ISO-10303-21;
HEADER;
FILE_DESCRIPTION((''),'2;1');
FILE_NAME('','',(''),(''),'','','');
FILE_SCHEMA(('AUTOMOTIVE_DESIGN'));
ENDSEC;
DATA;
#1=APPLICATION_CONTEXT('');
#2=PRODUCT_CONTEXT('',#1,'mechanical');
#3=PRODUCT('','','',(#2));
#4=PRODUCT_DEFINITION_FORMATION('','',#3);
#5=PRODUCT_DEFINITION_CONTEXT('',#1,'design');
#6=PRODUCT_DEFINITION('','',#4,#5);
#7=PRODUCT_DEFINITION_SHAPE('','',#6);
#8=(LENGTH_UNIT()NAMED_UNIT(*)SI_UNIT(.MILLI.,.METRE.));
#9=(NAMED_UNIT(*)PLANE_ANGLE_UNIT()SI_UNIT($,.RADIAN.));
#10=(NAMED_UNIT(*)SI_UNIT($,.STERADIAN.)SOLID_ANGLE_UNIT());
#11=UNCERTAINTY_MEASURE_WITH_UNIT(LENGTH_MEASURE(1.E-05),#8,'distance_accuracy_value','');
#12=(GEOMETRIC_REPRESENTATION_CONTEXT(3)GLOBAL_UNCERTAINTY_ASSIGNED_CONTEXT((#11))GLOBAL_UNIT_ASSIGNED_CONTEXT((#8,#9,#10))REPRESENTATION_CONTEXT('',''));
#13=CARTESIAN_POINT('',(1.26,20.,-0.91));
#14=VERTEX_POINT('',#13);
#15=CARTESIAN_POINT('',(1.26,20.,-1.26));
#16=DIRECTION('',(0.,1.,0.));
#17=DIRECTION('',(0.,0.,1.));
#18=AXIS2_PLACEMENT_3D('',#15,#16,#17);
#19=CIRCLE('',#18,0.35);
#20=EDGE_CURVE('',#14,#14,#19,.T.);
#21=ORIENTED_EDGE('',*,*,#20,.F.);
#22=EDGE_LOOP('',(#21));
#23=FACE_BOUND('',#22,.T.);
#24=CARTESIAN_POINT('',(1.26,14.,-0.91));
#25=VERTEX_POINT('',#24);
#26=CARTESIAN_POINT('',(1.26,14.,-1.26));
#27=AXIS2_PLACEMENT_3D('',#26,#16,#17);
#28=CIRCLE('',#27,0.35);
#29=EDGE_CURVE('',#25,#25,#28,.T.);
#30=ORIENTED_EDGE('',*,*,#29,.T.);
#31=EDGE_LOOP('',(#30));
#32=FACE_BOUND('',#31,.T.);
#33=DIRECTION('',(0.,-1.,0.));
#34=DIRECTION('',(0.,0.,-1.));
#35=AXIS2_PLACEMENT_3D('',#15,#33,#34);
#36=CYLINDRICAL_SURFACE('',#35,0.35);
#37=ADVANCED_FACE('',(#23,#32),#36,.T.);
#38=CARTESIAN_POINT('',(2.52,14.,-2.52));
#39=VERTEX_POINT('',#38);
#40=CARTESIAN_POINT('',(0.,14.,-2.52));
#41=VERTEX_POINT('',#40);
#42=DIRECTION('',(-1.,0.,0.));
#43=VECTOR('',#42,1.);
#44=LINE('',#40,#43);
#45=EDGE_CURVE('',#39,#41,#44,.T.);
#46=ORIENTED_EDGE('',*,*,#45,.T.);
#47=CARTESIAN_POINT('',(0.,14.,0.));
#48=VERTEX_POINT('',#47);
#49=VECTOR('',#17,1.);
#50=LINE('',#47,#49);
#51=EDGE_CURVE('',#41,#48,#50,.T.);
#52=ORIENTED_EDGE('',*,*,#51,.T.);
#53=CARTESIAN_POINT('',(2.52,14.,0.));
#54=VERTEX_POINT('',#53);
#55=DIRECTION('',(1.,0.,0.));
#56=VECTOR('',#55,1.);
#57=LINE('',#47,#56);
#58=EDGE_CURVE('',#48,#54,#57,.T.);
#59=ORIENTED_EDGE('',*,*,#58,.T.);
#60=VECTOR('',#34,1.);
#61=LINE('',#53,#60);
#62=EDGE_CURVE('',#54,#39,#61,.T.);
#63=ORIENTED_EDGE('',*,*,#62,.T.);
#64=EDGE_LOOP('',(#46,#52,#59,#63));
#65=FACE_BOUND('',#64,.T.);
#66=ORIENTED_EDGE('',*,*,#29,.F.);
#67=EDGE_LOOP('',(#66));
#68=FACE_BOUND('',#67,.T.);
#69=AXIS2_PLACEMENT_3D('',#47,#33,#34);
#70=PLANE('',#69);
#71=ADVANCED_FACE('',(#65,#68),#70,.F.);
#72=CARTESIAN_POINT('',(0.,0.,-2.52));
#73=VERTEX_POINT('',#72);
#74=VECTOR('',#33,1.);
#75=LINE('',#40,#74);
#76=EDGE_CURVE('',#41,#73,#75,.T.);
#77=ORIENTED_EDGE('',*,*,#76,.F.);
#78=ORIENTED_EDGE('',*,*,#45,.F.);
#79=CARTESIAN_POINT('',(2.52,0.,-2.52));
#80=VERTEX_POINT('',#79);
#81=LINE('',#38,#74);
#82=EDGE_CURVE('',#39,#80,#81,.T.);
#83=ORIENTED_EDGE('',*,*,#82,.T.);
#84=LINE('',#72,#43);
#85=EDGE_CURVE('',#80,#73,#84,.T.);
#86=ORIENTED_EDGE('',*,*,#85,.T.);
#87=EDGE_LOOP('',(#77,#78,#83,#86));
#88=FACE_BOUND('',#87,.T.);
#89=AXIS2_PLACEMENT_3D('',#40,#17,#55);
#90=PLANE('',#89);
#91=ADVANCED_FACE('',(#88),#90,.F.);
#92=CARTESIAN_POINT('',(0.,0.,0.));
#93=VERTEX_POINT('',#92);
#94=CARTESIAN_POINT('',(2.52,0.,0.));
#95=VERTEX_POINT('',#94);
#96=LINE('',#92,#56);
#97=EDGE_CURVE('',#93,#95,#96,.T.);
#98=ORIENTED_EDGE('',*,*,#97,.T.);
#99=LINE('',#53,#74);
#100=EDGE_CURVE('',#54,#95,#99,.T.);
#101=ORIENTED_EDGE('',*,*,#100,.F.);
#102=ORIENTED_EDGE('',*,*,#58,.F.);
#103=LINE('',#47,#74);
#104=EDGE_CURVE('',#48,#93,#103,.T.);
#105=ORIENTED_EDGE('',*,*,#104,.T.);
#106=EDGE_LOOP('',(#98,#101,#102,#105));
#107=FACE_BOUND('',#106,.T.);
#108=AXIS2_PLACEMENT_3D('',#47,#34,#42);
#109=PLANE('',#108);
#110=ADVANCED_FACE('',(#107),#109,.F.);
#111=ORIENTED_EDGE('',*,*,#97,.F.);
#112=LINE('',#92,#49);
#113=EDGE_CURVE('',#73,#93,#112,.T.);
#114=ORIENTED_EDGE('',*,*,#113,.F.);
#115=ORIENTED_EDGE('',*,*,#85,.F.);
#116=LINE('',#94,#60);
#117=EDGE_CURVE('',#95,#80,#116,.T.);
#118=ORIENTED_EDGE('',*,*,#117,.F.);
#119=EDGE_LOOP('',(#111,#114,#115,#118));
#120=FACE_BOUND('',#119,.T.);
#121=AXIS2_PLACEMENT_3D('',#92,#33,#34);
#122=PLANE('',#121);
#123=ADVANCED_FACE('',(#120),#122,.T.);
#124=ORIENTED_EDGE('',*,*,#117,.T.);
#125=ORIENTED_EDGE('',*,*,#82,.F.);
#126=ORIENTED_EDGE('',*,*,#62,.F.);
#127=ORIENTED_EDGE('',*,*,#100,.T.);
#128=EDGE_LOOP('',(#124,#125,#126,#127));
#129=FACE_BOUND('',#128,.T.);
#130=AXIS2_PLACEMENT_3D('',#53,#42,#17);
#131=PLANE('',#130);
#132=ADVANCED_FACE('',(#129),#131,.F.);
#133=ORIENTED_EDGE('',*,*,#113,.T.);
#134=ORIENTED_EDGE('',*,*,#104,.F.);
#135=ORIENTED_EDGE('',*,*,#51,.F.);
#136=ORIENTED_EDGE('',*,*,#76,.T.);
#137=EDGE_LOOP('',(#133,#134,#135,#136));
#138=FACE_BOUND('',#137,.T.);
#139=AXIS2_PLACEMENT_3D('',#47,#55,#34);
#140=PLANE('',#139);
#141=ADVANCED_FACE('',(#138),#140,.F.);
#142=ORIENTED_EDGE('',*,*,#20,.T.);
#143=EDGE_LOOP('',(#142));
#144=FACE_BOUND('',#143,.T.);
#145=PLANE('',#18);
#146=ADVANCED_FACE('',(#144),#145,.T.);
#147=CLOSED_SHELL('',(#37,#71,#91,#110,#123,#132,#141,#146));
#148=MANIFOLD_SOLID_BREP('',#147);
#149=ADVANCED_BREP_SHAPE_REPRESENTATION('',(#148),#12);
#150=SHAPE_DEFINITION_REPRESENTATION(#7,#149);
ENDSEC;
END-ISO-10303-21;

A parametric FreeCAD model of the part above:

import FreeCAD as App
import Part
import Sketcher

V = App.Vector
Q = App.Units.Quantity


def add_polygon(sketch, points):
    """Adds a closed chain of lines whose ends are joined by coincident constraints."""
    first, n = sketch.GeometryCount, len(points)
    for a, b in zip(points, points[1:] + points[:1]):
        sketch.addGeometry(Part.LineSegment(App.Vector(*a, 0), App.Vector(*b, 0)), False)
    for i in range(n):
        sketch.addConstraint(Sketcher.Constraint("Coincident", first + i, 2, first + (i + 1) % n, 1))

doc = App.newDocument("Part")
params = doc.addObject("Spreadsheet::Sheet", "Params")
for row, (alias, value) in enumerate([
    ("sketch1_width", "2.52 mm"),
    ("pad1_length", "14 mm"),
    ("sketch2_diameter", "0.7 mm"),
    ("pad2_length", "6 mm"),
], start=1):
    params.set(f"A{row}", alias)
    params.set(f"B{row}", "=" + value)
    params.setAlias(f"B{row}", alias)

body = doc.addObject("PartDesign::Body", "Body")

sketch1 = doc.addObject("Sketcher::SketchObject", "Sketch")
body.addObject(sketch1)
sketch1.AttachmentSupport = (doc.XZ_Plane, [""])
sketch1.MapMode = "FlatFace"
add_polygon(sketch1, [(0, -2.5), (0, 0), (2.5, 0), (2.5, -2.5)])
sketch1.addConstraint(Sketcher.Constraint("Vertical", 0))
sketch1.addConstraint(Sketcher.Constraint("Horizontal", 1))
sketch1.addConstraint(Sketcher.Constraint("Vertical", 2))
sketch1.addConstraint(Sketcher.Constraint("Horizontal", 3))
sketch1.addConstraint(Sketcher.Constraint("Coincident", 0, 2, -1, 1))
sketch1.addConstraint(Sketcher.Constraint("Equal", 3, 0))
sketch1.addConstraint(Sketcher.Constraint("DistanceX", 1, 1, 1, 2, Q("2.52 mm")))
sketch1.setExpression("Constraints[10]", "Params.sketch1_width")
pad1 = doc.addObject("PartDesign::Pad", "Pad")
body.addObject(pad1)
pad1.Profile = sketch1
pad1.setExpression("Length", "Params.pad1_length")
pad1.Reversed = True

sketch2 = doc.addObject("Sketcher::SketchObject", "Sketch001")
body.addObject(sketch2)
sketch2.AttachmentSupport = (doc.XZ_Plane, [""])
sketch2.MapMode = "FlatFace"
sketch2.AttachmentOffset = App.Placement(V(0, 0, -14), App.Rotation())
sketch2.addGeometry(Part.Circle(V(1.26, -1.26, 0), V(0, 0, 1), 0.35), False)
sketch2.addConstraint(Sketcher.Constraint("Diameter", 0, Q("0.7 mm")))
sketch2.addConstraint(Sketcher.Constraint("DistanceX", -1, 1, 0, 3, Q("1.26 mm")))
sketch2.addConstraint(Sketcher.Constraint("DistanceY", 0, 3, -1, 1, Q("1.26 mm")))
sketch2.setExpression("Constraints[0]", "Params.sketch2_diameter")
pad2 = doc.addObject("PartDesign::Pad", "Pad001")
body.addObject(pad2)
pad2.Profile = sketch2
pad2.setExpression("Length", "Params.pad2_length")
pad2.Reversed = True

doc.recompute()
